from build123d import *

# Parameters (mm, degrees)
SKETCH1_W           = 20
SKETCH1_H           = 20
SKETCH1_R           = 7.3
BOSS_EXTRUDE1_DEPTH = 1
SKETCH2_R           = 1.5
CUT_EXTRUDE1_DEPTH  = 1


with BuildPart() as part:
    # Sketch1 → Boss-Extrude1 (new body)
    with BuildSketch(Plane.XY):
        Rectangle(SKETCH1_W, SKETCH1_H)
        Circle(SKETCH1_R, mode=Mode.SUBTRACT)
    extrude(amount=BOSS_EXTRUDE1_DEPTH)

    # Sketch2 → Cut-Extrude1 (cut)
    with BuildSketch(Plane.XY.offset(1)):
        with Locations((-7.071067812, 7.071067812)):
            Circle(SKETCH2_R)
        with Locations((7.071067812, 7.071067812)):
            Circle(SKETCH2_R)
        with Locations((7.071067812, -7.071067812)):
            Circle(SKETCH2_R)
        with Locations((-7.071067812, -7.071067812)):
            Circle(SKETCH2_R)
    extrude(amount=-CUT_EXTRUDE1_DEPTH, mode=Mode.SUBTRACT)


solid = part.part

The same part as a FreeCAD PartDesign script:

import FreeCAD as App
import Part
import Sketcher
from FreeCAD import Vector


def add_polygon(sketch, points):
    """Adds a closed chain of lines whose ends are joined by coincident constraints."""
    first, n = sketch.GeometryCount, len(points)
    for a, b in zip(points, points[1:] + points[:1]):
        sketch.addGeometry(Part.LineSegment(App.Vector(*a, 0), App.Vector(*b, 0)), False)
    for i in range(n):
        sketch.addConstraint(Sketcher.Constraint("Coincident", first + i, 2, first + (i + 1) % n, 1))

doc = App.newDocument("Part")
body = doc.addObject("PartDesign::Body", "Body")

sketch1 = body.newObject("Sketcher::SketchObject", "Sketch")
sketch1.AttachmentSupport = (doc.getObject("XY_Plane"), [""])
sketch1.MapMode = "FlatFace"
add_polygon(sketch1, [(-10, 10), (-10, -10), (10, -10), (10, 10)])
sketch1.addGeometry(Part.Circle(Vector(0, 0, 0), Vector(0, 0, 1), 7), False)
sketch1.addConstraint(Sketcher.Constraint("Vertical", 0))
sketch1.addConstraint(Sketcher.Constraint("Horizontal", 1))
sketch1.addConstraint(Sketcher.Constraint("Vertical", 2))
sketch1.addConstraint(Sketcher.Constraint("Horizontal", 3))
sketch1.addConstraint(Sketcher.Constraint("Coincident", 4, 3, -1, 1))
sketch1.addConstraint(Sketcher.Constraint("Symmetric", 0, 2, 2, 2, -1, 1))
sketch1.addConstraint(Sketcher.Constraint("Equal", 3, 0))
sketch1.addConstraint(Sketcher.Constraint("Diameter", 4, 14.6))
sketch1.addConstraint(Sketcher.Constraint("DistanceX", 1, 1, 1, 2, 20.0))
pad1 = body.newObject("PartDesign::Pad", "Pad")
pad1.Profile = sketch1
pad1.Length = 1

sketch2 = body.newObject("Sketcher::SketchObject", "Sketch001")
sketch2.AttachmentSupport = (doc.getObject("XY_Plane"), [""])
sketch2.MapMode = "FlatFace"
sketch2.AttachmentOffset = App.Placement(Vector(0, 0, 1), App.Rotation())
sketch2.addGeometry(Part.Circle(Vector(-7.1, 7.1, 0), Vector(0, 0, 1), 1.5), False)
sketch2.addGeometry(Part.Circle(Vector(7.1, 7.1, 0), Vector(0, 0, 1), 1.5), False)
sketch2.addGeometry(Part.Circle(Vector(7.1, -7.1, 0), Vector(0, 0, 1), 1.5), False)
sketch2.addGeometry(Part.Circle(Vector(-7.1, -7.1, 0), Vector(0, 0, 1), 1.5), False)
sketch2.addConstraint(Sketcher.Constraint("Equal", 0, 1))
sketch2.addConstraint(Sketcher.Constraint("Equal", 1, 2))
sketch2.addConstraint(Sketcher.Constraint("Equal", 2, 3))
sketch2.addConstraint(Sketcher.Constraint("Symmetric", 0, 3, 2, 3, -1, 1))
sketch2.addConstraint(Sketcher.Constraint("Symmetric", 1, 3, 3, 3, -1, 1))
sketch2.addConstraint(Sketcher.Constraint("Symmetric", 0, 3, 1, 3, -2))
sketch2.addConstraint(Sketcher.Constraint("Diameter", 0, 3.0))
sketch2.addConstraint(Sketcher.Constraint("DistanceX", 0, 3, -1, 1, 7.071068))
sketch2.addConstraint(Sketcher.Constraint("DistanceY", -1, 1, 0, 3, 7.071068))
pocket1 = body.newObject("PartDesign::Pocket", "Pocket")
pocket1.Profile = sketch2
pocket1.Length = 1

doc.recompute()
